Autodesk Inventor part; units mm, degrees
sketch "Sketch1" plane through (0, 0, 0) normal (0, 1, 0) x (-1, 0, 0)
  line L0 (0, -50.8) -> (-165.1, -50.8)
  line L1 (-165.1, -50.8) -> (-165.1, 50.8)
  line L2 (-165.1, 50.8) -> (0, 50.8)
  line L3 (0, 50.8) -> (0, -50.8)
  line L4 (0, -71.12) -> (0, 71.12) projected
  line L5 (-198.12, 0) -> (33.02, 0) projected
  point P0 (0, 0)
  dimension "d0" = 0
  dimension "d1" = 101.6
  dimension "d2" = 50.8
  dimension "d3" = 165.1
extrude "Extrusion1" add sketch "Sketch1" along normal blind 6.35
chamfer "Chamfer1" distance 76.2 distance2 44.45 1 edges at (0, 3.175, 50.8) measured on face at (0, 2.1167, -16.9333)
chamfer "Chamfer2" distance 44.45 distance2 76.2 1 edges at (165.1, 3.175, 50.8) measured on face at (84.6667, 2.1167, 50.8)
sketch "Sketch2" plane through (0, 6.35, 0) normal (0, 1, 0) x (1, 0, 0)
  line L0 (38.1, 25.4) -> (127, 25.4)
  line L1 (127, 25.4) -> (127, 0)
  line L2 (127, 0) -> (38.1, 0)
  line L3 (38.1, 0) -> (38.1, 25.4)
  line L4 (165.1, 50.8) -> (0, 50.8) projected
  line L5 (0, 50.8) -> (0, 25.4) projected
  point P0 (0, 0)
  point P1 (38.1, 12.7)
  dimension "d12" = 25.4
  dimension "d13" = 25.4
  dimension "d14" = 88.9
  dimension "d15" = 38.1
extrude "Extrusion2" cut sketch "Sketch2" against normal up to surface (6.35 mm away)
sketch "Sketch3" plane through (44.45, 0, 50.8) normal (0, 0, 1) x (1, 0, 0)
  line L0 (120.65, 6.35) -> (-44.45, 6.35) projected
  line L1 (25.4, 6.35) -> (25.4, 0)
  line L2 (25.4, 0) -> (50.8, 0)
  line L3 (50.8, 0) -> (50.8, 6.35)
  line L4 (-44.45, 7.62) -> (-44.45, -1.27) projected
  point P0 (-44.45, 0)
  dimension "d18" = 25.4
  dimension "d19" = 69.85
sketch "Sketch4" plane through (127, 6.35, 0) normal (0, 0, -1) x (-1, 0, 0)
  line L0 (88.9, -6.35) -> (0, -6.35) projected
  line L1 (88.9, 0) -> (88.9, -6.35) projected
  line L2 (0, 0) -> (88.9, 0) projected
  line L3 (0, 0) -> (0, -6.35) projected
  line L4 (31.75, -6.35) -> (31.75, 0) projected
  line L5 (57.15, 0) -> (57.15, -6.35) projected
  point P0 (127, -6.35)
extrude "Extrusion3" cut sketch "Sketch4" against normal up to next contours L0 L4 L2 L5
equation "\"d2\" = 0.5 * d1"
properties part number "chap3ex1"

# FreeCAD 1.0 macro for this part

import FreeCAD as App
import Part
import Sketcher
Q = App.Units.Quantity


def edges_at(feature, points):
    """Names of the edges that pass closest to the given points."""
    edges = feature.Shape.Edges
    near = lambda p: min(range(len(edges)), key=lambda i: edges[i].distToShape(Part.Vertex(*p))[0])
    return sorted({f"Edge{near(p) + 1}" for p in points})


def add_polygon(sketch, points):
    """Adds a closed chain of lines whose ends are joined by coincident constraints."""
    first, n = sketch.GeometryCount, len(points)
    for a, b in zip(points, points[1:] + points[:1]):
        sketch.addGeometry(Part.LineSegment(App.Vector(*a, 0), App.Vector(*b, 0)), False)
    for i in range(n):
        sketch.addConstraint(Sketcher.Constraint("Coincident", first + i, 2, first + (i + 1) % n, 1))

doc = App.newDocument("Part")
body = doc.addObject("PartDesign::Body", "Body")

sketch1 = body.newObject("Sketcher::SketchObject", "Sketch")
sketch1.AttachmentSupport = (doc.getObject("XZ_Plane"), [""])
sketch1.MapMode = "FlatFace"
add_polygon(sketch1, [(165, -51), (0, -51), (0, 51), (165, 51)])
sketch1.addConstraint(Sketcher.Constraint("Horizontal", 0))
sketch1.addConstraint(Sketcher.Constraint("Vertical", 1))
sketch1.addConstraint(Sketcher.Constraint("Horizontal", 2))
sketch1.addConstraint(Sketcher.Constraint("Vertical", 3))
sketch1.addConstraint(Sketcher.Constraint("Symmetric", 0, 2, 1, 2, -1, 1))
sketch1.addConstraint(Sketcher.Constraint("DistanceY", 1, 1, 1, 2, Q("4 in")))
sketch1.addConstraint(Sketcher.Constraint("DistanceX", 0, 2, 0, 1, Q("6.5 in")))
pad1 = body.newObject("PartDesign::Pad", "Pad")
pad1.Profile = sketch1
pad1.Length = Q("0.25 in")
pad1.Reversed = True
doc.recompute()

chamfer = body.newObject("PartDesign::Chamfer", "Chamfer")
chamfer.Base = (pad1, edges_at(pad1, [(0, 3.175, 50.8)]))
chamfer.ChamferType = "Two distances"
chamfer.Size = Q("3 in")
chamfer.Size2 = Q("1.75 in")
doc.recompute()

chamfer2 = body.newObject("PartDesign::Chamfer", "Chamfer001")
chamfer2.Base = (chamfer, edges_at(chamfer, [(165.1, 3.175, 50.8)]))
chamfer2.ChamferType = "Two distances"
chamfer2.Size = Q("1.75 in")
chamfer2.Size2 = Q("3 in")

sketch2 = body.newObject("Sketcher::SketchObject", "Sketch001")
sketch2.AttachmentSupport = (doc.getObject("XZ_Plane"), [""])
sketch2.MapMode = "FlatFace"
sketch2.AttachmentOffset = App.Placement(App.Vector(0, 0, -0.25 * 25.4), App.Rotation())
add_polygon(sketch2, [(127, -25), (38, -25), (38, 0), (127, 0)])
sketch2.addConstraint(Sketcher.Constraint("Horizontal", 0))
sketch2.addConstraint(Sketcher.Constraint("Vertical", 1))
sketch2.addConstraint(Sketcher.Constraint("Horizontal", 2))
sketch2.addConstraint(Sketcher.Constraint("Vertical", 3))
sketch2.addConstraint(Sketcher.Constraint("PointOnObject", 1, 2, -1))
sketch2.addConstraint(Sketcher.Constraint("DistanceY", 1, 1, 1, 2, Q("1 in")))
sketch2.addConstraint(Sketcher.Constraint("DistanceX", 0, 2, 0, 1, Q("3.5 in")))
sketch2.addConstraint(Sketcher.Constraint("DistanceX", -1, 1, 0, 2, Q("1.5 in")))
pocket1 = body.newObject("PartDesign::Pocket", "Pocket")
pocket1.Profile = sketch2
pocket1.Length = Q("0.25 in")
pocket1.Reversed = True

sketch3 = body.newObject("Sketcher::SketchObject", "Sketch002")
sketch3.AttachmentSupport = (doc.getObject("XY_Plane"), [""])
sketch3.MapMode = "FlatFace"
add_polygon(sketch3, [(95, 0), (70, 0), (70, 6), (95, 6)])
sketch3.addConstraint(Sketcher.Constraint("Horizontal", 0))
sketch3.addConstraint(Sketcher.Constraint("Vertical", 1))
sketch3.addConstraint(Sketcher.Constraint("Horizontal", 2))
sketch3.addConstraint(Sketcher.Constraint("Vertical", 3))
sketch3.addConstraint(Sketcher.Constraint("PointOnObject", 0, 2, -1))
sketch3.addConstraint(Sketcher.Constraint("DistanceX", 0, 2, 0, 1, Q("1 in")))
sketch3.addConstraint(Sketcher.Constraint("DistanceY", 1, 1, 1, 2, Q("0.25 in")))
sketch3.addConstraint(Sketcher.Constraint("DistanceX", -1, 1, 0, 2, Q("2.75 in")))
pocket2 = body.newObject("PartDesign::Pocket", "Pocket001")
pocket2.Profile = sketch3
pocket2.Type = "UpToFirst"
pocket2.Reversed = True

doc.recompute()
